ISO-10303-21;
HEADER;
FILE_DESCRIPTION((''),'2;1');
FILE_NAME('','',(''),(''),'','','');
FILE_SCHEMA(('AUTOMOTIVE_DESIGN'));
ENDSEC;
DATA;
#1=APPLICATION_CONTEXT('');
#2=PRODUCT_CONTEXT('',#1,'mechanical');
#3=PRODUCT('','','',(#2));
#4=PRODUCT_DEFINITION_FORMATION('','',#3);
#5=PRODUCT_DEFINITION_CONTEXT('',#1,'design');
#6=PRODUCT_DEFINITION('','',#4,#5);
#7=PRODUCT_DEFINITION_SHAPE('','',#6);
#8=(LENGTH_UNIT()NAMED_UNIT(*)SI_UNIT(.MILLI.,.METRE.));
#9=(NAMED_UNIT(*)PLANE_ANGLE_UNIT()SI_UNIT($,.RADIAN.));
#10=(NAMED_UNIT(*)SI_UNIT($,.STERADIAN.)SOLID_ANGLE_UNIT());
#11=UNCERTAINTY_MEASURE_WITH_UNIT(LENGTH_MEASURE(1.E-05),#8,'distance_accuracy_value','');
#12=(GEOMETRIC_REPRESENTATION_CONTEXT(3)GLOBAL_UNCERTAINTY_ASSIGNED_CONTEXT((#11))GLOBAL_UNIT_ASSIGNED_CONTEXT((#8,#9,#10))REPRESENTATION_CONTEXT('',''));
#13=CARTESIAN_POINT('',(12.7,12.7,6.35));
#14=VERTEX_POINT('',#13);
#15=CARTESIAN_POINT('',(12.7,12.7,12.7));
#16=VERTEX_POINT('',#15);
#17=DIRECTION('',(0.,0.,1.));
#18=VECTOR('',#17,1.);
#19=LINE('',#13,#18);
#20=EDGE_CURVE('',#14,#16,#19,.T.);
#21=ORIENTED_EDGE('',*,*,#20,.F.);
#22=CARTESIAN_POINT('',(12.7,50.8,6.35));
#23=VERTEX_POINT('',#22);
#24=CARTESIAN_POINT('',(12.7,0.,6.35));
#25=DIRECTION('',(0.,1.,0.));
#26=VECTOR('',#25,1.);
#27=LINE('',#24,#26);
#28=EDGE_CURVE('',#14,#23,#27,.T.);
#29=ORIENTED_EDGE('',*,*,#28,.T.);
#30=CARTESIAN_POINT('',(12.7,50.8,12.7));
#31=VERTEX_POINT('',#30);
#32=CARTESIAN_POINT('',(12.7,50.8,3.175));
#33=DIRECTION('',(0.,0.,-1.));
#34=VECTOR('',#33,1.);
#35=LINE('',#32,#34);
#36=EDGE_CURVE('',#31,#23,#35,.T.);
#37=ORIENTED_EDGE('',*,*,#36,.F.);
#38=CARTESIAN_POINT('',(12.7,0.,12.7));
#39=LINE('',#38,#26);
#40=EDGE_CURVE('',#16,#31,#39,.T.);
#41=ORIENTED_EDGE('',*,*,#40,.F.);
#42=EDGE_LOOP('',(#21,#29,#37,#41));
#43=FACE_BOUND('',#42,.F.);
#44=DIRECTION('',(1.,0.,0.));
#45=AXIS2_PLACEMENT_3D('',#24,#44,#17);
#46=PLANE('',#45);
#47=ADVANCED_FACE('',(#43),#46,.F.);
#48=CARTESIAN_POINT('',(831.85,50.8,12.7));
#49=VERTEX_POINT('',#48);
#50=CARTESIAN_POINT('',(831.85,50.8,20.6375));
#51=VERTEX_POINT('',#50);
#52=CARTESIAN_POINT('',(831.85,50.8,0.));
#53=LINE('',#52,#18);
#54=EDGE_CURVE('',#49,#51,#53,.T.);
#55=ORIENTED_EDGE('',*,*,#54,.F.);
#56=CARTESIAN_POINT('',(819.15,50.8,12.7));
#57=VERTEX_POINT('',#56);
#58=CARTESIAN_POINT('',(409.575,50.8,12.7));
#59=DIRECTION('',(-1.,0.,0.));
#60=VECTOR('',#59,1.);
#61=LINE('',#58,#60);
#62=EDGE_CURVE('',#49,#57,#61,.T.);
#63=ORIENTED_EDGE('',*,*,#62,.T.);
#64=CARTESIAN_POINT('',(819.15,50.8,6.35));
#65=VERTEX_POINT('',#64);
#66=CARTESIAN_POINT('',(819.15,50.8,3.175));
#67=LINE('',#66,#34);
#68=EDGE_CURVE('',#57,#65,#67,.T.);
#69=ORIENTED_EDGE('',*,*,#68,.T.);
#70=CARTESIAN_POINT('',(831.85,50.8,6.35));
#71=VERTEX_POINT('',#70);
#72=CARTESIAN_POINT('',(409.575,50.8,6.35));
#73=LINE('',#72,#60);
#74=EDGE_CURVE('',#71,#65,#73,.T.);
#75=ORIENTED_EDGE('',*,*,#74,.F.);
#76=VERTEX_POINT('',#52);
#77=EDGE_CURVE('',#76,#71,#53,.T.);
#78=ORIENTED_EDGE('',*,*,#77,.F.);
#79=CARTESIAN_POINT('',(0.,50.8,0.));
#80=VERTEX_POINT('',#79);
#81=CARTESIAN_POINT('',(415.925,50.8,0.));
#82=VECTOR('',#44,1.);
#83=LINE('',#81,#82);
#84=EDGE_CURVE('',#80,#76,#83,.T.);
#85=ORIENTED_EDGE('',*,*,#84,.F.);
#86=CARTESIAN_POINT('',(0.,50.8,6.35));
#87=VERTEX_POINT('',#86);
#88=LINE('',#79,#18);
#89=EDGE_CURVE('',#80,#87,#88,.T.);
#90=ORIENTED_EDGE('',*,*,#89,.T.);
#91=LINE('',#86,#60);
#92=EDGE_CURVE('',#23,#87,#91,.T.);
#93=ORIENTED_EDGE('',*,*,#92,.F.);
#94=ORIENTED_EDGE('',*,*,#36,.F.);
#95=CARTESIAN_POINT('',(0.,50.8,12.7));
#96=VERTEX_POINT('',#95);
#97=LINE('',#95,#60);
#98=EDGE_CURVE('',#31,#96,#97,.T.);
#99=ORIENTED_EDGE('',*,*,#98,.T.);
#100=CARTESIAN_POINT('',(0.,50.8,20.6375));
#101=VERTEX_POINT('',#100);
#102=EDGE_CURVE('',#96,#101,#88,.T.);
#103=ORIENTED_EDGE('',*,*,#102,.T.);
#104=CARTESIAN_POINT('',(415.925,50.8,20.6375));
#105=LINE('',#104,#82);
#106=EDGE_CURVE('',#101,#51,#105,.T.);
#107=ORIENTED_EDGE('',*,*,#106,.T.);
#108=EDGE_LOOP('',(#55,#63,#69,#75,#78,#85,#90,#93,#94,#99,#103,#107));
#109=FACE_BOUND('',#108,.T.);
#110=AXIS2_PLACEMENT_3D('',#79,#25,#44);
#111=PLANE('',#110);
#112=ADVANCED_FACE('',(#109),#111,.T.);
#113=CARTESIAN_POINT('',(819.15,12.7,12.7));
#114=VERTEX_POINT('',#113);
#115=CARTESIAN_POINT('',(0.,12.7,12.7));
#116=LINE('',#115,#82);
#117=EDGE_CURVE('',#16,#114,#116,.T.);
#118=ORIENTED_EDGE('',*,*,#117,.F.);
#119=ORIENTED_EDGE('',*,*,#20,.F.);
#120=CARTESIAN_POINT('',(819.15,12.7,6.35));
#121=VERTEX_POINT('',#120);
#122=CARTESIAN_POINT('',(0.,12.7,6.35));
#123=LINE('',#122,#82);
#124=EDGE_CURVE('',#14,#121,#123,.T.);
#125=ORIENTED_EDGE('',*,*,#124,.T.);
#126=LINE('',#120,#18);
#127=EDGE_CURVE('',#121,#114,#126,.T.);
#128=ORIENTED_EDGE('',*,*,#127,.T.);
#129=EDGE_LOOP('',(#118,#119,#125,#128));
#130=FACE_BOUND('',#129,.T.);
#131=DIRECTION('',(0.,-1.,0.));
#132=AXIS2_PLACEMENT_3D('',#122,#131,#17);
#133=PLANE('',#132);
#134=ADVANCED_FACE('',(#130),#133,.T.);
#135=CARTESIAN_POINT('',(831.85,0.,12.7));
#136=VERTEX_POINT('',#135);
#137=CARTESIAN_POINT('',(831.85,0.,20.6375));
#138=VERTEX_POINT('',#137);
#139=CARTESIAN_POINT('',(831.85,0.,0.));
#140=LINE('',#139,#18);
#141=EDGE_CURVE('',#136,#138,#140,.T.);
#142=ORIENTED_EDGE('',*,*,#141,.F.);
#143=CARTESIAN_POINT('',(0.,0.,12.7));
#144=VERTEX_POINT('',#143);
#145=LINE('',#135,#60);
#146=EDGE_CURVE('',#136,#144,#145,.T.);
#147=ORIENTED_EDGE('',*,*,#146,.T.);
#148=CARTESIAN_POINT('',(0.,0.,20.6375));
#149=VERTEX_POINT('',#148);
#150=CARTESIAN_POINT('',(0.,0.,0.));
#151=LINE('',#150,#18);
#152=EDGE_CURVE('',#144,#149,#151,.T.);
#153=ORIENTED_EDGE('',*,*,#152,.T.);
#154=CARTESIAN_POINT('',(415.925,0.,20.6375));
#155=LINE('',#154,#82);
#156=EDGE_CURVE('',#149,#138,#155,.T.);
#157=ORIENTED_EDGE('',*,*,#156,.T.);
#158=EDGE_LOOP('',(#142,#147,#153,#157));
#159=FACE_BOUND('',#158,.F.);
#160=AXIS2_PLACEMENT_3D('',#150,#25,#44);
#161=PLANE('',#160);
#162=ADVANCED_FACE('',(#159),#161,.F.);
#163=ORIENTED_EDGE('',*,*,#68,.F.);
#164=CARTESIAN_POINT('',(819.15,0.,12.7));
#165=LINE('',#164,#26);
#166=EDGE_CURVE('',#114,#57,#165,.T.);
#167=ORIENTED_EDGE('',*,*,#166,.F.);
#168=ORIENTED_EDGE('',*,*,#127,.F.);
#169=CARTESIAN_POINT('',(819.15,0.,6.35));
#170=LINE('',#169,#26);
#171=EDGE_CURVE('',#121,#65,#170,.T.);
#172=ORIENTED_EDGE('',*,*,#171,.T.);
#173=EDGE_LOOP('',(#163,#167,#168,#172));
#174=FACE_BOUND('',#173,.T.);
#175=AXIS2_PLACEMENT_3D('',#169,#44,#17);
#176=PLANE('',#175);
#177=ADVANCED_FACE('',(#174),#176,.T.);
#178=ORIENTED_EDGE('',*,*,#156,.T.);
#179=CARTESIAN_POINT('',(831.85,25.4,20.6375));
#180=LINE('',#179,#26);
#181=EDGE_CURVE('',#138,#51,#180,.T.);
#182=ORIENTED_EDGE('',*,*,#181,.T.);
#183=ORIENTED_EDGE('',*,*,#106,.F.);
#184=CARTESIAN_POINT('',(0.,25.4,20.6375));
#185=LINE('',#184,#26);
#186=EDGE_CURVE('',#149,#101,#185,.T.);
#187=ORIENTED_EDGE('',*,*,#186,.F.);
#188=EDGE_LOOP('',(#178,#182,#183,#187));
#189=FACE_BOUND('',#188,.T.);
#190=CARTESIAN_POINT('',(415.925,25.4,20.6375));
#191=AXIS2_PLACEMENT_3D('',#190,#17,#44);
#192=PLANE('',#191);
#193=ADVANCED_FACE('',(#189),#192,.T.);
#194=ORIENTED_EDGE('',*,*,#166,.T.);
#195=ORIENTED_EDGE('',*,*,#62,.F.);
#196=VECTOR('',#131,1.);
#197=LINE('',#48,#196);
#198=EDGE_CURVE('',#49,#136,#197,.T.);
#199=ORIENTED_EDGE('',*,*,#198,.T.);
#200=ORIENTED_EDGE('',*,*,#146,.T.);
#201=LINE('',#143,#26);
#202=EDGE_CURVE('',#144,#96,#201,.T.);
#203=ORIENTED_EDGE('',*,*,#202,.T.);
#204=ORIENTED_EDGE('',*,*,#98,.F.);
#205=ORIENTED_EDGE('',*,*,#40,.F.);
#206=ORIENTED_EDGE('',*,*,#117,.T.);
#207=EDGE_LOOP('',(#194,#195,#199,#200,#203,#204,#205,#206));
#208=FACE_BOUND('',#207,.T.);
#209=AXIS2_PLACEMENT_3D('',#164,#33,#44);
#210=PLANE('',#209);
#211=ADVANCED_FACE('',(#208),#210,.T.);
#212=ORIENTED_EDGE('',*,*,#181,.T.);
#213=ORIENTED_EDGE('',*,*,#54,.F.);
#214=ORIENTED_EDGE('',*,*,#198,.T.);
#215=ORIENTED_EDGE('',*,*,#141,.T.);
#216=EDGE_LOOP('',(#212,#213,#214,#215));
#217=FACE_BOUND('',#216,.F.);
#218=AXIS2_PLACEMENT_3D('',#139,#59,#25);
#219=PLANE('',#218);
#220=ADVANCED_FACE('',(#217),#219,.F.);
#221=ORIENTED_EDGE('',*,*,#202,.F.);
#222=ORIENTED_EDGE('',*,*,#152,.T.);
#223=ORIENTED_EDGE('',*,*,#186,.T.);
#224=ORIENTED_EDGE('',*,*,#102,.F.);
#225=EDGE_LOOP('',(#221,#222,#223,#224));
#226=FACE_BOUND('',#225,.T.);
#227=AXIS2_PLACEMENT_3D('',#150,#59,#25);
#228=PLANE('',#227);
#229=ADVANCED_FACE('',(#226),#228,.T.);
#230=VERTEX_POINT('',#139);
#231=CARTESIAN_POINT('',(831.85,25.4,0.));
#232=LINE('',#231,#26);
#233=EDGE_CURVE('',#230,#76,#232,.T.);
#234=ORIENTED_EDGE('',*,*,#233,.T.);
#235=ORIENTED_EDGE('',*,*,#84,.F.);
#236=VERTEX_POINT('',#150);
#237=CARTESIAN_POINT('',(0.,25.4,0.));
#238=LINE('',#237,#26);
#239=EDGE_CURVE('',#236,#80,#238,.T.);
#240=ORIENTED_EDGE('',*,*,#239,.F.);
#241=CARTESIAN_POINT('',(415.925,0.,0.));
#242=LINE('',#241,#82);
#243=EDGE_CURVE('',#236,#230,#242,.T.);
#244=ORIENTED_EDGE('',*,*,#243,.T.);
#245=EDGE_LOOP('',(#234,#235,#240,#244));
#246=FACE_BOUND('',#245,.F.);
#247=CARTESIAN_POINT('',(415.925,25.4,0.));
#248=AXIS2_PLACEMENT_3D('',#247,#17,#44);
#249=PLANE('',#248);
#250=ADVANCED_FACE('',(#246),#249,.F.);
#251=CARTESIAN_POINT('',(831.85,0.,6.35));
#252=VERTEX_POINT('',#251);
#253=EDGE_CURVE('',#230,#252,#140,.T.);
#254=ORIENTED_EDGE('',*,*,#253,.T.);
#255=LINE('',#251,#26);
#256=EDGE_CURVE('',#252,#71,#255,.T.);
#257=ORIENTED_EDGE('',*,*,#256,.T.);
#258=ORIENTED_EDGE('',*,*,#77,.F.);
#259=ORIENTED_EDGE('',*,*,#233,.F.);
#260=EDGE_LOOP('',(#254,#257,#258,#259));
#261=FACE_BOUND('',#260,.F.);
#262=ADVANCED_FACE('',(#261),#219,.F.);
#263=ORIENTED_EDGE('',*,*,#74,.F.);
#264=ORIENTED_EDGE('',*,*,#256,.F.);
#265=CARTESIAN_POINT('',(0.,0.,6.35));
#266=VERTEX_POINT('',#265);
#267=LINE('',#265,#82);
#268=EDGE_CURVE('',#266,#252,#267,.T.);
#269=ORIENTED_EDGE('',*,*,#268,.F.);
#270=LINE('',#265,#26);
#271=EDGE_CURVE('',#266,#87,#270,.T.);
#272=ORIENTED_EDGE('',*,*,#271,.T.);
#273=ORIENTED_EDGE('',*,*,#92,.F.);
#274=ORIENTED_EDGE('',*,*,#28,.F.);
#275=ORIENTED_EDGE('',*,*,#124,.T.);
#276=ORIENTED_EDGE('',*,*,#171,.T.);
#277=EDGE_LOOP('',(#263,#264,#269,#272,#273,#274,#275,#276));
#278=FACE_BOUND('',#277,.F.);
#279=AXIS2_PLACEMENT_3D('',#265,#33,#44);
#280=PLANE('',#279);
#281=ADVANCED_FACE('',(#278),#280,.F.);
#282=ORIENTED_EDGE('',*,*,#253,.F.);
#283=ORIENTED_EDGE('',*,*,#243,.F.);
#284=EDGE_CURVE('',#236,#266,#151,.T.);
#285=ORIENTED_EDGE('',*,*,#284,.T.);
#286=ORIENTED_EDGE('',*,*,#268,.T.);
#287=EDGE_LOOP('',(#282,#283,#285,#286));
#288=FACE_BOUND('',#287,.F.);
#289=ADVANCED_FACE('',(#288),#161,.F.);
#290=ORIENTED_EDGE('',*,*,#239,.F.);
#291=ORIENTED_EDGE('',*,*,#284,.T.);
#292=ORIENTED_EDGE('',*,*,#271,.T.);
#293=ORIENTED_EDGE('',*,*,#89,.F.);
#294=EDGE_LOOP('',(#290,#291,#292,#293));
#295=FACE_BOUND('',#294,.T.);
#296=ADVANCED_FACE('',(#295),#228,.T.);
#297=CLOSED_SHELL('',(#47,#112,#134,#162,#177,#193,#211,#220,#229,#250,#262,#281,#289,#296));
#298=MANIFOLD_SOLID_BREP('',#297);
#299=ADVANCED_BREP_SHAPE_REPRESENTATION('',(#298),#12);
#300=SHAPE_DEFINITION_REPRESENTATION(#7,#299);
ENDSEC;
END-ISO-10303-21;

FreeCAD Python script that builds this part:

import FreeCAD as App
import Part
import Sketcher
Q = App.Units.Quantity

doc = App.newDocument("Part")
params = doc.addObject("Spreadsheet::Sheet", "Params")
for row, (alias, value) in enumerate([
    ("sketch1_height", "2 in"),
    ("sketch1_width", "32.75 in"),
    ("pad1_length", "0.8125 in"),
    ("sketch2_width", "0.5 in"),
    ("sketch2_height", "0.25 in"),
    ("sketch3_width", "0.5 in"),
    ("sketch3_height", "0.25 in"),
], start=1):
    params.set(f"A{row}", alias)
    params.set(f"B{row}", "=" + value)
    params.setAlias(f"B{row}", alias)

body = doc.addObject("PartDesign::Body", "Body")

# Sketch on XY plane
sketch1 = body.newObject("Sketcher::SketchObject", "Sketch")
sketch1.AttachmentSupport = (doc.getObject("XY_Plane"), [""])
sketch1.MapMode = "FlatFace"
sketch1.addGeometry([
    Part.LineSegment(App.Vector(0, 50.8, 0), App.Vector(0, 0, 0)),
    Part.LineSegment(App.Vector(0, 0, 0), App.Vector(831.85, 0, 0)),
    Part.LineSegment(App.Vector(831.85, 0, 0), App.Vector(831.85, 50.8, 0)),
    Part.LineSegment(App.Vector(831.85, 50.8, 0), App.Vector(0, 50.8, 0)),
], False)
sketch1.addConstraint([
    Sketcher.Constraint("Coincident", 0, 2, 1, 1),
    Sketcher.Constraint("Coincident", 1, 2, 2, 1),
    Sketcher.Constraint("Coincident", 2, 2, 3, 1),
    Sketcher.Constraint("Coincident", 3, 2, 0, 1),
    Sketcher.Constraint("Vertical", 0),
    Sketcher.Constraint("Horizontal", 1),
    Sketcher.Constraint("Vertical", 2),
    Sketcher.Constraint("Horizontal", 3),
    Sketcher.Constraint("Coincident", 0, 2, -1, 1),
    Sketcher.Constraint("DistanceY", 0, 2, 0, 1, Q("2 in")),
    Sketcher.Constraint("DistanceX", 1, 1, 1, 2, Q("32.75 in")),
])
sketch1.setExpression("Constraints[9]", "Params.sketch1_height")
sketch1.setExpression("Constraints[10]", "Params.sketch1_width")
pad1 = body.newObject("PartDesign::Pad", "Pad")
pad1.Profile = sketch1
pad1.setExpression("Length", "Params.pad1_length")

# Sketch on YZ plane
sketch2 = body.newObject("Sketcher::SketchObject", "Sketch001")
sketch2.AttachmentSupport = (doc.getObject("YZ_Plane"), [""])
sketch2.MapMode = "FlatFace"
sketch2.addGeometry([
    Part.LineSegment(App.Vector(0, 12.7, 0), App.Vector(0, 6.35, 0)),
    Part.LineSegment(App.Vector(0, 6.35, 0), App.Vector(12.7, 6.35, 0)),
    Part.LineSegment(App.Vector(12.7, 6.35, 0), App.Vector(12.7, 12.7, 0)),
    Part.LineSegment(App.Vector(12.7, 12.7, 0), App.Vector(0, 12.7, 0)),
], False)
sketch2.addConstraint([
    Sketcher.Constraint("Coincident", 0, 2, 1, 1),
    Sketcher.Constraint("Coincident", 1, 2, 2, 1),
    Sketcher.Constraint("Coincident", 2, 2, 3, 1),
    Sketcher.Constraint("Coincident", 3, 2, 0, 1),
    Sketcher.Constraint("Vertical", 0),
    Sketcher.Constraint("Horizontal", 1),
    Sketcher.Constraint("Vertical", 2),
    Sketcher.Constraint("Horizontal", 3),
    Sketcher.Constraint("PointOnObject", 0, 2, -2),
    Sketcher.Constraint("DistanceX", 1, 1, 1, 2, Q("0.5 in")),
    Sketcher.Constraint("DistanceY", 0, 2, 0, 1, Q("0.25 in")),
    Sketcher.Constraint("DistanceY", -1, 1, 2, 2, Q("0.5 in")),
])
sketch2.setExpression("Constraints[9]", "Params.sketch2_width")
sketch2.setExpression("Constraints[10]", "Params.sketch2_height")
pocket1 = body.newObject("PartDesign::Pocket", "Pocket")
pocket1.Profile = sketch2
pocket1.Type = "ThroughAll"
pocket1.Reversed = True

# Sketch on XZ plane
sketch3 = body.newObject("Sketcher::SketchObject", "Sketch002")
sketch3.AttachmentSupport = (doc.getObject("XZ_Plane"), [""])
sketch3.MapMode = "FlatFace"
sketch3.addGeometry([
    Part.LineSegment(App.Vector(0, 12.7, 0), App.Vector(0, 6.35, 0)),  # 0
    Part.LineSegment(App.Vector(0, 6.35, 0), App.Vector(12.7, 6.35, 0)),  # 1
    Part.LineSegment(App.Vector(12.7, 6.35, 0), App.Vector(12.7, 12.7, 0)),  # 2
    Part.LineSegment(App.Vector(12.7, 12.7, 0), App.Vector(0, 12.7, 0)),  # 3
    Part.LineSegment(App.Vector(819.15, 12.7, 0), App.Vector(819.15, 6.35, 0)),  # 4
    Part.LineSegment(App.Vector(819.15, 6.35, 0), App.Vector(831.85, 6.35, 0)),  # 5
    Part.LineSegment(App.Vector(831.85, 6.35, 0), App.Vector(831.85, 12.7, 0)),  # 6
    Part.LineSegment(App.Vector(831.85, 12.7, 0), App.Vector(819.15, 12.7, 0)),  # 7
], False)
sketch3.addConstraint([
    Sketcher.Constraint("Coincident", 0, 2, 1, 1),
    Sketcher.Constraint("Coincident", 1, 2, 2, 1),
    Sketcher.Constraint("Coincident", 2, 2, 3, 1),
    Sketcher.Constraint("Coincident", 3, 2, 0, 1),
    Sketcher.Constraint("Coincident", 4, 2, 5, 1),
    Sketcher.Constraint("Coincident", 5, 2, 6, 1),
    Sketcher.Constraint("Coincident", 6, 2, 7, 1),
    Sketcher.Constraint("Coincident", 7, 2, 4, 1),
    Sketcher.Constraint("Vertical", 0),
    Sketcher.Constraint("Horizontal", 1),
    Sketcher.Constraint("Vertical", 2),
    Sketcher.Constraint("Horizontal", 3),
    Sketcher.Constraint("Vertical", 4),
    Sketcher.Constraint("Horizontal", 5),
    Sketcher.Constraint("Vertical", 6),
    Sketcher.Constraint("Horizontal", 7),
    Sketcher.Constraint("PointOnObject", 0, 2, -2),
    Sketcher.Constraint("Horizontal", 1, 2, 4, 2),
    Sketcher.Constraint("Horizontal", 3, 2, 6, 2),
    Sketcher.Constraint("Equal", 3, 5),
    Sketcher.Constraint("DistanceX", 1, 1, 1, 2, Q("0.5 in")),
    Sketcher.Constraint("DistanceY", 0, 2, 0, 1, Q("0.25 in")),
    Sketcher.Constraint("DistanceY", -1, 1, 2, 2, Q("0.5 in")),
    Sketcher.Constraint("DistanceX", -1, 1, 4, 2, Q("32.25 in")),
])
sketch3.setExpression("Constraints[20]", "Params.sketch3_width")
sketch3.setExpression("Constraints[21]", "Params.sketch3_height")
pocket2 = body.newObject("PartDesign::Pocket", "Pocket001")
pocket2.Profile = sketch3
pocket2.Type = "ThroughAll"

doc.recompute()
